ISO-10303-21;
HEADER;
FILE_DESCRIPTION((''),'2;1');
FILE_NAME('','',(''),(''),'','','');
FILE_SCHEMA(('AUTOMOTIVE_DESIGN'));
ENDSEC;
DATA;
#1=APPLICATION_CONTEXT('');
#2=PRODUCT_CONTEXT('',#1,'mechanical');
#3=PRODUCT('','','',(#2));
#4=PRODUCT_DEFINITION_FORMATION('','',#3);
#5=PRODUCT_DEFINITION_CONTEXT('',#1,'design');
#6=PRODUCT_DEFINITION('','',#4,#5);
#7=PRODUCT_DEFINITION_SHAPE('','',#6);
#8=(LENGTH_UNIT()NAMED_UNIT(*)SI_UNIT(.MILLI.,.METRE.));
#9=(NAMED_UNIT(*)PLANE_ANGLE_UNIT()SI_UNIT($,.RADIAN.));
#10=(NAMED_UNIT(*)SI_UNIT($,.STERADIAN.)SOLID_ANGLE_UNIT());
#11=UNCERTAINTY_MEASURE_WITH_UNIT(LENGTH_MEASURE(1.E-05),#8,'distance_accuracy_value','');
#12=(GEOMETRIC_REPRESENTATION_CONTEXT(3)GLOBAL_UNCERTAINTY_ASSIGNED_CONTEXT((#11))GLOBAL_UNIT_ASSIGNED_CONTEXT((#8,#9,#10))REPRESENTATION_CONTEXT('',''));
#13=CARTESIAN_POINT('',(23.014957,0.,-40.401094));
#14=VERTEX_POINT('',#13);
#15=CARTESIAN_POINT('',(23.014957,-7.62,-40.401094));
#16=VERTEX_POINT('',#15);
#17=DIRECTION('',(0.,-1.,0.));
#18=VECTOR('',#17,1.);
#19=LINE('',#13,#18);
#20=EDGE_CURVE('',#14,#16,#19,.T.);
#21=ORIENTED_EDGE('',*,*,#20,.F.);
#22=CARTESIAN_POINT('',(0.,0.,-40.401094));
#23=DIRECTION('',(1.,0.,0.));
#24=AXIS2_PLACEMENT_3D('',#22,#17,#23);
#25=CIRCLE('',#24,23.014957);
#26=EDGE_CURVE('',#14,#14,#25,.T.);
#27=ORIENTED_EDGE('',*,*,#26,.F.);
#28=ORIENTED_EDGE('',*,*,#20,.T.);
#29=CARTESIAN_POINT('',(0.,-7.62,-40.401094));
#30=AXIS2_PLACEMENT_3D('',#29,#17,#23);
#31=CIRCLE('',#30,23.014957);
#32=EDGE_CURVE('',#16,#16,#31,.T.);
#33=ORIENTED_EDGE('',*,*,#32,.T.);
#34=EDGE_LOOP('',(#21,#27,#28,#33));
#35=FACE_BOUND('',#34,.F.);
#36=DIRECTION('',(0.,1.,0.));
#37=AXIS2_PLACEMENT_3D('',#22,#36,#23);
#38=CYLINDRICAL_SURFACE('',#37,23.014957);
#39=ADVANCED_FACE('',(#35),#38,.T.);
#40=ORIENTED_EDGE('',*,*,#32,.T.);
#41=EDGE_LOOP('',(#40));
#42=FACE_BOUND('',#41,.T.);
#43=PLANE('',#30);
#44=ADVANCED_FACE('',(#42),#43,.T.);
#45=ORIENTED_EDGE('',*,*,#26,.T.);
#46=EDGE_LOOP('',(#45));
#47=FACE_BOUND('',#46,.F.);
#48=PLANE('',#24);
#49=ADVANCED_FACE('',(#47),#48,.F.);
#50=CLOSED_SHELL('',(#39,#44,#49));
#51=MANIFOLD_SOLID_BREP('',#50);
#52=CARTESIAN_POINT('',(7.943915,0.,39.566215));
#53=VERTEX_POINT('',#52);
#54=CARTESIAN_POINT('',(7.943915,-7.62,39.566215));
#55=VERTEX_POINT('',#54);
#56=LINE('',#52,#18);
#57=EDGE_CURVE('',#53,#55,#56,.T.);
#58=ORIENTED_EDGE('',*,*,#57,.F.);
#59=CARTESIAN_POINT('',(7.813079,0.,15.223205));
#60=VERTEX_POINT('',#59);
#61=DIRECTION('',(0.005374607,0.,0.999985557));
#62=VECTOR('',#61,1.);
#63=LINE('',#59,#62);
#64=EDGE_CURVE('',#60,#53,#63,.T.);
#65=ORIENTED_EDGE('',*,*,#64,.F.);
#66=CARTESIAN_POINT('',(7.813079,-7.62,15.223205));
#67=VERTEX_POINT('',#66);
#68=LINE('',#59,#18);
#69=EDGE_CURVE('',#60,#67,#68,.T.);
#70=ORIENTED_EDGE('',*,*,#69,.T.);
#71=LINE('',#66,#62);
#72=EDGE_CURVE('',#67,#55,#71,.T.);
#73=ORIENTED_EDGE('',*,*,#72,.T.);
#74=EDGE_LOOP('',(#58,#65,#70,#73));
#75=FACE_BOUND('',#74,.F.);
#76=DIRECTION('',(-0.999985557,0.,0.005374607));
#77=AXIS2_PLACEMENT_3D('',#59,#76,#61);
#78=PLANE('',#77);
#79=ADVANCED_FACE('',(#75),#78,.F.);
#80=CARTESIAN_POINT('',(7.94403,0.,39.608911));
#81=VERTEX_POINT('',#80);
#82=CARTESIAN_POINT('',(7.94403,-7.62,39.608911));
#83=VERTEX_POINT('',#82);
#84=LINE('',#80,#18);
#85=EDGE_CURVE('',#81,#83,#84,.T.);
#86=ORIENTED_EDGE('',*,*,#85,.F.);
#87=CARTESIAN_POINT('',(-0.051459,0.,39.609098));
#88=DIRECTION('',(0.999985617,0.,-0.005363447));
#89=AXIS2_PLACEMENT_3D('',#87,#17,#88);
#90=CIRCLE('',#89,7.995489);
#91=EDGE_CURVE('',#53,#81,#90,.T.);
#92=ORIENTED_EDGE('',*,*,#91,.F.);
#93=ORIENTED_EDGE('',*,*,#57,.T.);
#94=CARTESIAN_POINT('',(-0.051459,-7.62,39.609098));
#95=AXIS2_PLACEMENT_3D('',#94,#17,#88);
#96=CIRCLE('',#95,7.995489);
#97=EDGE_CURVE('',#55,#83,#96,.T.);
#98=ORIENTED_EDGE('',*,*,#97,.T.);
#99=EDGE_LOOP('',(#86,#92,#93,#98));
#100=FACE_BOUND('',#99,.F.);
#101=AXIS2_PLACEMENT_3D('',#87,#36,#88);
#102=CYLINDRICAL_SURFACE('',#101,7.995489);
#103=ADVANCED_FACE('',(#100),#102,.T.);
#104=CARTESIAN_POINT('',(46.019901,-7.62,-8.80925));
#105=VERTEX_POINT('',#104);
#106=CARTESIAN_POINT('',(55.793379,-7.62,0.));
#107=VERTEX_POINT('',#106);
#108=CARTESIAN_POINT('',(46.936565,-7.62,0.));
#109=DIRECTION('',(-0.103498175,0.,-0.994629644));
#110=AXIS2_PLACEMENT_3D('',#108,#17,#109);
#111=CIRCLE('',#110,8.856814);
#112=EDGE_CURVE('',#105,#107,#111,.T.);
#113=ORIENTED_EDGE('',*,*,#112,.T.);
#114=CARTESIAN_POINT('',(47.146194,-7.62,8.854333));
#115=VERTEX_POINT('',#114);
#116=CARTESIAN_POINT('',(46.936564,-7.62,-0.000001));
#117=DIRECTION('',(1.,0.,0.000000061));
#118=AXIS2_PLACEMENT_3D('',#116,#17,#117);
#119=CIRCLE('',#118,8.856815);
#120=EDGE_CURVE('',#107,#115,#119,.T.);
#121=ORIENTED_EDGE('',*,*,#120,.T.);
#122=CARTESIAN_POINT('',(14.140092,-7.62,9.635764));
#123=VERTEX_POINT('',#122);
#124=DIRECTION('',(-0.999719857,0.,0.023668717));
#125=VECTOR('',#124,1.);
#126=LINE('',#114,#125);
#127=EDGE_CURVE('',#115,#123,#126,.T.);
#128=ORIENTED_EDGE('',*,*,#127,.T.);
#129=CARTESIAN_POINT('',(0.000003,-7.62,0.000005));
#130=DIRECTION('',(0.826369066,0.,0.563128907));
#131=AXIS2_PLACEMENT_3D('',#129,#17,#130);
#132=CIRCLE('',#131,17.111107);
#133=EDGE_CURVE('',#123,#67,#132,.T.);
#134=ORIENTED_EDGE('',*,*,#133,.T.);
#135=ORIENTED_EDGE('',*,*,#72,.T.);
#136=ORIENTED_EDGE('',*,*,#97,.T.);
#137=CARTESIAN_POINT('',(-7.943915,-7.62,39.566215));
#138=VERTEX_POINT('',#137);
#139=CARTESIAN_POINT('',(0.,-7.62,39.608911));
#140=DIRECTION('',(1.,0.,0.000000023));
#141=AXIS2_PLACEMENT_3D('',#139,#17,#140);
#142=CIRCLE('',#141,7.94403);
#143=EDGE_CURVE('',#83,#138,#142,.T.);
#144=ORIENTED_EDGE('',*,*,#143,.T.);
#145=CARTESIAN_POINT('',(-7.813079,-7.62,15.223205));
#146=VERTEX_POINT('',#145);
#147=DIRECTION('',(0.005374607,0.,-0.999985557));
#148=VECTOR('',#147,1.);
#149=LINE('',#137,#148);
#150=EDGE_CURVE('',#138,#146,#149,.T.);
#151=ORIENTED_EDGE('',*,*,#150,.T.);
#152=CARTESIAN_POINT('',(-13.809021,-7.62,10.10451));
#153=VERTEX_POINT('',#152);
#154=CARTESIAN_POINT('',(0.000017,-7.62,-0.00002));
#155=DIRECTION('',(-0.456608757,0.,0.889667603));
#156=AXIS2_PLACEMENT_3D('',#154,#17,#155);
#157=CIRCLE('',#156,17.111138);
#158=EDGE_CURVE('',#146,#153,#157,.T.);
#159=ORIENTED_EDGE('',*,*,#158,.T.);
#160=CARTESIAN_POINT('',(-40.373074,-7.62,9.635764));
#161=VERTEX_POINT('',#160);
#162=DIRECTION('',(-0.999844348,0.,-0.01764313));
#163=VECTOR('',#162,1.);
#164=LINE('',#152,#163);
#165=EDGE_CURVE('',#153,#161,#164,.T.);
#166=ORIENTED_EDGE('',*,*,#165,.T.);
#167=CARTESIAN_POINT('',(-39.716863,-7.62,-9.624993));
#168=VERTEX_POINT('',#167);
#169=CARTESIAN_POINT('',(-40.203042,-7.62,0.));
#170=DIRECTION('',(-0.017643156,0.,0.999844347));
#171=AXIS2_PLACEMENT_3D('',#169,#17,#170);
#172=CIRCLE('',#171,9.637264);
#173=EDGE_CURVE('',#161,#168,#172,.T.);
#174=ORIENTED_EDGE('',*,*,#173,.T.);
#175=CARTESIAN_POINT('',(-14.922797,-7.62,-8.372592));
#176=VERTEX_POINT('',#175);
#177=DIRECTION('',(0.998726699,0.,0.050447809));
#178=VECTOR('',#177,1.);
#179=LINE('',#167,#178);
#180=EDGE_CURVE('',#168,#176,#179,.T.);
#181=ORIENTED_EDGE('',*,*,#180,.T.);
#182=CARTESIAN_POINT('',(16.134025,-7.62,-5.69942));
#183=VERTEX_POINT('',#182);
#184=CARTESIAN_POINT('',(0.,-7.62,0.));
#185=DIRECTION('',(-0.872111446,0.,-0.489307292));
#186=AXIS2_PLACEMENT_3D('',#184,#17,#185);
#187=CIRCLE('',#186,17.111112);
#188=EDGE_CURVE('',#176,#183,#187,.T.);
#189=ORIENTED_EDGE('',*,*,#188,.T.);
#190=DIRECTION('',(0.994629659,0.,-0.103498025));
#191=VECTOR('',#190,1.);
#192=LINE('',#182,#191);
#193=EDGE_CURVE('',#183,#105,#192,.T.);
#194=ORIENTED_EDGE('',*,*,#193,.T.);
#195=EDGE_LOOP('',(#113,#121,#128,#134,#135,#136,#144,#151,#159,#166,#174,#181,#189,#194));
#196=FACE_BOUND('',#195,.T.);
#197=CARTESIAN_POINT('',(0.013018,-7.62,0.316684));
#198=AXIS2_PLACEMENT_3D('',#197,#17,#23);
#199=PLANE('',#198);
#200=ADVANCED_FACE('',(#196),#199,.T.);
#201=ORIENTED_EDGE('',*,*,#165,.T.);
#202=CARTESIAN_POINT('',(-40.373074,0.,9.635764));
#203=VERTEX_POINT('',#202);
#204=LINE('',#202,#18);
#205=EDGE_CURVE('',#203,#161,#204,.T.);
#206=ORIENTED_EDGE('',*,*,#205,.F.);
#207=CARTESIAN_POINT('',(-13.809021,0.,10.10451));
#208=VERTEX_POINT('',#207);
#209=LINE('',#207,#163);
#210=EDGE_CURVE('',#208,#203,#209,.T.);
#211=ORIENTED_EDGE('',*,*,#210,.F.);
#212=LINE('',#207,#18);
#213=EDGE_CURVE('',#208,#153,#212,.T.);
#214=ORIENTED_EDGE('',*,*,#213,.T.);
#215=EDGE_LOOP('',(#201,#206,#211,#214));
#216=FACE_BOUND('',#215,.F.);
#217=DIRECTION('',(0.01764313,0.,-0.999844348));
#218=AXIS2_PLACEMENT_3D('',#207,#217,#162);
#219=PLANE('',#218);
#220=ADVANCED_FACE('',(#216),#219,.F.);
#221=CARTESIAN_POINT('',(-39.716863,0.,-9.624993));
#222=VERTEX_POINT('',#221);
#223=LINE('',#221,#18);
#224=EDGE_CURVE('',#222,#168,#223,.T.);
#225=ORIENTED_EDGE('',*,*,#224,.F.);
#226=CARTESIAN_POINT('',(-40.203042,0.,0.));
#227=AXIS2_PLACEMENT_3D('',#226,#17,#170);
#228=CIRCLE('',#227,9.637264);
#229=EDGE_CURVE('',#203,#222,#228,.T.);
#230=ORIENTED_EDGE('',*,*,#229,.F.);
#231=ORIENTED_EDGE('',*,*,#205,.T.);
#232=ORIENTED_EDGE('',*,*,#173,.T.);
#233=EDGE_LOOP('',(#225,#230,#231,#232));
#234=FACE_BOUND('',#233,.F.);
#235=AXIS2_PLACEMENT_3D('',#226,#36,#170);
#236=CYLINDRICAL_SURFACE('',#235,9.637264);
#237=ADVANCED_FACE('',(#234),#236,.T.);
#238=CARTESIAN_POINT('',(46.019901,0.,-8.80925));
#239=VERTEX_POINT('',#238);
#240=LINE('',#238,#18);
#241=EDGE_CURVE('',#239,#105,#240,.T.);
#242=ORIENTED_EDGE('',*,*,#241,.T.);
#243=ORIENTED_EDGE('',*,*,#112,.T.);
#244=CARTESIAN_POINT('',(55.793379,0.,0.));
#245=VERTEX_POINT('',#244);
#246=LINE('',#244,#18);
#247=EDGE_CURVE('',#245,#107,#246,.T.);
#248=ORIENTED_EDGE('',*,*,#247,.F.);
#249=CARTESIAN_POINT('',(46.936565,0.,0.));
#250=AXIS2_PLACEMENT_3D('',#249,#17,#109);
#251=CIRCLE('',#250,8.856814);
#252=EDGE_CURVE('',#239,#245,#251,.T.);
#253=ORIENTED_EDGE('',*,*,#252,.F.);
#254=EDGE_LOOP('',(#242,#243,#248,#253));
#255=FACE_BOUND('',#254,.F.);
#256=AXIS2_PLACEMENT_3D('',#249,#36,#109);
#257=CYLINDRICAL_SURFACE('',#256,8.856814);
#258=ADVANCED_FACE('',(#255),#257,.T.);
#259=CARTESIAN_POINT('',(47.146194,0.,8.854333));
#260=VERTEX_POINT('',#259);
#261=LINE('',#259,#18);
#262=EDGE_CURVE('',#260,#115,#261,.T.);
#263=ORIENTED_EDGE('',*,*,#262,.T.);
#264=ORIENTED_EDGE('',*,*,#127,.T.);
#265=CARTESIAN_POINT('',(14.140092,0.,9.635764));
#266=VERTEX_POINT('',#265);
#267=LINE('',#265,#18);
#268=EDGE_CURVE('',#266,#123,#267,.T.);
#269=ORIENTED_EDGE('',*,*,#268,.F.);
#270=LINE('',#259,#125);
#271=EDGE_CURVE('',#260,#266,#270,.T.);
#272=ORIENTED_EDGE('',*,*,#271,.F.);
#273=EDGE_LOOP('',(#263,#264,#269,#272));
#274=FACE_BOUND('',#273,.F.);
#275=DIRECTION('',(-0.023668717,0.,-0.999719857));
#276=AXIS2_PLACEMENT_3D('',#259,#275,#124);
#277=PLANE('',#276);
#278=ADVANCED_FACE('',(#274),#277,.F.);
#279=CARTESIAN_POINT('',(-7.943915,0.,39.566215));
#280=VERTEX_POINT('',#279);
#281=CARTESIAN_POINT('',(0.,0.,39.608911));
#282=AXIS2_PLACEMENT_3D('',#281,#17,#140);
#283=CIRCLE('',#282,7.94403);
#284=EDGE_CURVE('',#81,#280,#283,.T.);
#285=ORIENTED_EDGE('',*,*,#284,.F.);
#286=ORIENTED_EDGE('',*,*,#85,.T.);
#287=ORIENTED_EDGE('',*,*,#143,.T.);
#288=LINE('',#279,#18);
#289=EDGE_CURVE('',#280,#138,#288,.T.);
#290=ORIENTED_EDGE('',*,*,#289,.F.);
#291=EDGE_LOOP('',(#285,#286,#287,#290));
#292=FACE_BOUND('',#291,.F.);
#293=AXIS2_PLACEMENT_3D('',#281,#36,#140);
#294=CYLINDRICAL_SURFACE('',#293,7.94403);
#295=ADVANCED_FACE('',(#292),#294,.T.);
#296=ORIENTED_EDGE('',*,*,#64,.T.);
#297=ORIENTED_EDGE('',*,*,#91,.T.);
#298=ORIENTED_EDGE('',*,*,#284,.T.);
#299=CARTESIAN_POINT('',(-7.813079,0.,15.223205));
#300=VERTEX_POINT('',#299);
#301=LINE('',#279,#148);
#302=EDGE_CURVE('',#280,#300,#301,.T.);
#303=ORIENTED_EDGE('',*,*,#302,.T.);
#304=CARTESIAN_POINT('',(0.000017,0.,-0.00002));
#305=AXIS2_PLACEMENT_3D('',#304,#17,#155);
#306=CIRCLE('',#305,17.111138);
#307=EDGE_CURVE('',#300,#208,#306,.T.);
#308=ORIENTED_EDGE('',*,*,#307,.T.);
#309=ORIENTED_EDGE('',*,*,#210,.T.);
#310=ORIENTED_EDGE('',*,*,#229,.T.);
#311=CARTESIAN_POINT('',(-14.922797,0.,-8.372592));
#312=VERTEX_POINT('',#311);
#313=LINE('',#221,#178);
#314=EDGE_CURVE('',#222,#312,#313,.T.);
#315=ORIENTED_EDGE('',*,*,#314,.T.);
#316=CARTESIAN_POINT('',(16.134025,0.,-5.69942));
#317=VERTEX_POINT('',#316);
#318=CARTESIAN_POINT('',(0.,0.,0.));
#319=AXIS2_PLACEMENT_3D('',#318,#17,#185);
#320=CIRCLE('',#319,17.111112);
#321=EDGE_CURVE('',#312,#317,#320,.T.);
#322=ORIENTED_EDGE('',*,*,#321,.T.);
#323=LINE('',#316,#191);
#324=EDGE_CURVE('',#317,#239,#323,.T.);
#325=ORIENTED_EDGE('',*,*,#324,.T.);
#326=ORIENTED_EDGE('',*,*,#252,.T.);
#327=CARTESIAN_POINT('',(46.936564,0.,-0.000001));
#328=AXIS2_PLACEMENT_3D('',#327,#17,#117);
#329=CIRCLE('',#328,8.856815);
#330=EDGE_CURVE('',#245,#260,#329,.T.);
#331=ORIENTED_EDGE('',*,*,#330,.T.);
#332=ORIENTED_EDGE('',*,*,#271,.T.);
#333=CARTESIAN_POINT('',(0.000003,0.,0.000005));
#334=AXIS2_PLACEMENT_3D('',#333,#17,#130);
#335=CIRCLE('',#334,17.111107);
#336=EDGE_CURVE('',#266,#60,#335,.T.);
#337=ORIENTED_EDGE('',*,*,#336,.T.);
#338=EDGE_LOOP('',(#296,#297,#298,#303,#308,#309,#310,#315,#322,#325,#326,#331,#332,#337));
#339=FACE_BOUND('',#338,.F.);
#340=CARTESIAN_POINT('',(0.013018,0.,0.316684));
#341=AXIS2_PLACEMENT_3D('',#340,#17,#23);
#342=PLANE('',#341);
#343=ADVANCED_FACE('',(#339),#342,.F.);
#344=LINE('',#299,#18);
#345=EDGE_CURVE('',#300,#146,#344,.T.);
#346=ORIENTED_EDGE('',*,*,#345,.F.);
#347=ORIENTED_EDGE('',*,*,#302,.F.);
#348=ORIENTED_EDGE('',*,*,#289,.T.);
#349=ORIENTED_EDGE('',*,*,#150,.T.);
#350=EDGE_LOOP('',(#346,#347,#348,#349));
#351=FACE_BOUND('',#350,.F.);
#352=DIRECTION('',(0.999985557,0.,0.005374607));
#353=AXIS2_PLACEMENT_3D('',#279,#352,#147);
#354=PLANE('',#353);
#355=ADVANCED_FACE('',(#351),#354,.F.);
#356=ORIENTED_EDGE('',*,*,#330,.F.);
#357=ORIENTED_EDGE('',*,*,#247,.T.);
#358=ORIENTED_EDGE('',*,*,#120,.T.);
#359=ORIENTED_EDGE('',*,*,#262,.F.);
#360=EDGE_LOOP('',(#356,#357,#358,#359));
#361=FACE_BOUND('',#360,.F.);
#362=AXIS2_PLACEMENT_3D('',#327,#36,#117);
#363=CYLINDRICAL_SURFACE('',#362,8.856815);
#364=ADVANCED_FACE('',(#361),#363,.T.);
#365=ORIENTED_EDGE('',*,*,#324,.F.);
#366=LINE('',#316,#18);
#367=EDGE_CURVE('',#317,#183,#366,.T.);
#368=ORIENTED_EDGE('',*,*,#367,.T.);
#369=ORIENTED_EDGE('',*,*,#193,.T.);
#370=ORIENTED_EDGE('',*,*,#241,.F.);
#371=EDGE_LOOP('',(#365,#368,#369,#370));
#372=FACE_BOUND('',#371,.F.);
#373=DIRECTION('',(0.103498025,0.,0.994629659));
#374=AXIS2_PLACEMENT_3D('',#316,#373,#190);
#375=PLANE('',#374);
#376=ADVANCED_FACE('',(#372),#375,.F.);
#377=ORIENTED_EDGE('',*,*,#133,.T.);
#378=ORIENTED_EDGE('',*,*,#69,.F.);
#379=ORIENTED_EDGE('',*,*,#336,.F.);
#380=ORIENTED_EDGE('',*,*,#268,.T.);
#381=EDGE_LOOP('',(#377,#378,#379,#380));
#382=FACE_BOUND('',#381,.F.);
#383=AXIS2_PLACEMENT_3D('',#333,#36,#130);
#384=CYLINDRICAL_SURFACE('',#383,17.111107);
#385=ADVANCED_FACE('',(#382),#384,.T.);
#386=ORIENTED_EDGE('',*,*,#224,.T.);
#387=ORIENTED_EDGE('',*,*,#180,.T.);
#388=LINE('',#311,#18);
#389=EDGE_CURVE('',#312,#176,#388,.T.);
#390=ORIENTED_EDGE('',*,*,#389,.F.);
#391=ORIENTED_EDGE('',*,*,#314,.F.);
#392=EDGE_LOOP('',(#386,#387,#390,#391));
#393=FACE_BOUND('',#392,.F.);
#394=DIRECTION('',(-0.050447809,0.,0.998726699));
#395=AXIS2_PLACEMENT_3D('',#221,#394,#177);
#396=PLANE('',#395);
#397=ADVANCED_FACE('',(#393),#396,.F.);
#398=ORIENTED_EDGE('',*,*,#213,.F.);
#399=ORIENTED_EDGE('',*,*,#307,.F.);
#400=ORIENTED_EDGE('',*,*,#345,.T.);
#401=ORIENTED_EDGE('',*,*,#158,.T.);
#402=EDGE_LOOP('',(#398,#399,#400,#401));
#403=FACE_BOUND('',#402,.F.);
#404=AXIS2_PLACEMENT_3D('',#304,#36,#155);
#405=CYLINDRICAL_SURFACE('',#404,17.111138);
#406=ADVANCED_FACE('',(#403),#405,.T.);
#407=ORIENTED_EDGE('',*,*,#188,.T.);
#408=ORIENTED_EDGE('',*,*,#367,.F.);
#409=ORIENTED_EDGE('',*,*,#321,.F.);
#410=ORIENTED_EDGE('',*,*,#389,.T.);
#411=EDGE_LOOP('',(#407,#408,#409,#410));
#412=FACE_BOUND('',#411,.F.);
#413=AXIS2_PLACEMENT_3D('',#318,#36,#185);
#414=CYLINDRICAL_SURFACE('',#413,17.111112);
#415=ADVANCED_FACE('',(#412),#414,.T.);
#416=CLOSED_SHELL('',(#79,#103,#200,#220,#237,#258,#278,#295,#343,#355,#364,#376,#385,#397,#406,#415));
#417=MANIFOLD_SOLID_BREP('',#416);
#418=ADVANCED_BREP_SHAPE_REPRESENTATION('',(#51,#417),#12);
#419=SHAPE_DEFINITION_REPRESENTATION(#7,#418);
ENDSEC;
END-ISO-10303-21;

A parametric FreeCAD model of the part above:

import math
import FreeCAD as App
import Part
import Sketcher

V = App.Vector
Q = App.Units.Quantity

doc = App.newDocument("Part")
body = doc.addObject("PartDesign::Body", "Body")
body.AllowCompound = True

sketch1 = doc.addObject("Sketcher::SketchObject", "Sketch")
body.addObject(sketch1)
sketch1.AttachmentSupport = (doc.XZ_Plane, [""])
sketch1.MapMode = "FlatFace"
sketch1.addGeometry([
    Part.ArcOfCircle(Part.Circle(V(0.000003, 0.000005, 0), V(0, 0, 1), 17.111107), math.radians(34.27246), math.radians(62.831526)),
    Part.LineSegment(V(7.813079, 15.223205, 0), V(7.943915, 39.566215, 0)),
    Part.ArcOfCircle(Part.Circle(V(-0.051459, 39.609098, 0), V(0, 0, 1), 7.995489), math.radians(-0.307304), math.radians(-0.001343)),
    Part.ArcOfCircle(Part.Circle(V(0, 39.608911, 0), V(0, 0, 1), 7.94403), math.radians(0.000001), math.radians(180.307942)),
    Part.LineSegment(V(-7.943915, 39.566215, 0), V(-7.813079, 15.223205, 0)),
    Part.ArcOfCircle(Part.Circle(V(0.000017, -0.00002, 0), V(0, 0, 1), 17.111138), math.radians(117.168492), math.radians(143.805829)),
    Part.LineSegment(V(-13.809021, 10.10451, 0), V(-40.373074, 9.635764, 0)),
    Part.ArcOfCircle(Part.Circle(V(-40.203042, 0, 0), V(0, 0, 1), 9.637264), math.radians(91.010931), math.radians(272.891676)),
    Part.LineSegment(V(-39.716863, -9.624993, 0), V(-14.922797, -8.372592, 0)),
    Part.ArcOfCircle(Part.Circle(V(0, 0, 0), V(0, 0, 1), 17.111112), math.radians(-150.704938), math.radians(-19.456006)),
    Part.LineSegment(V(16.134025, -5.69942, 0), V(46.019901, -8.80925, 0)),
    Part.ArcOfCircle(Part.Circle(V(46.936565, 0, 0), V(0, 0, 1), 8.856814), math.radians(-95.940647), math.radians(0.000002)),
    Part.ArcOfCircle(Part.Circle(V(46.936564, -0.000001, 0), V(0, 0, 1), 8.856815), math.radians(0.000003), math.radians(88.643754)),
    Part.LineSegment(V(47.146194, 8.854333, 0), V(14.140092, 9.635764, 0)),
    Part.Circle(V(0, -40.401094, 0), V(0, 0, 1), 23.014957),
], False)
sketch1.addConstraint([
    Sketcher.Constraint("Coincident", 0, 2, 1, 1),
    Sketcher.Constraint("Coincident", 1, 2, 2, 1),
    Sketcher.Constraint("Coincident", 2, 2, 3, 1),
    Sketcher.Constraint("Coincident", 3, 2, 4, 1),
    Sketcher.Constraint("Coincident", 4, 2, 5, 1),
    Sketcher.Constraint("Coincident", 5, 2, 6, 1),
    Sketcher.Constraint("Coincident", 6, 2, 7, 1),
    Sketcher.Constraint("Coincident", 7, 2, 8, 1),
    Sketcher.Constraint("Coincident", 8, 2, 9, 1),
    Sketcher.Constraint("Coincident", 9, 2, 10, 1),
    Sketcher.Constraint("Coincident", 10, 2, 11, 1),
    Sketcher.Constraint("Coincident", 11, 2, 12, 1),
    Sketcher.Constraint("Coincident", 12, 2, 13, 1),
    Sketcher.Constraint("Coincident", 13, 2, 0, 1),
    Sketcher.Constraint("Coincident", 0, 3, -1, 1),
    Sketcher.Constraint("Coincident", 9, 3, -1, 1),
    Sketcher.Constraint("Coincident", 12, 3, 11, 3),
    Sketcher.Constraint("PointOnObject", 3, 3, -2),
    Sketcher.Constraint("PointOnObject", 7, 3, -1),
    Sketcher.Constraint("PointOnObject", 11, 3, -1),
    Sketcher.Constraint("PointOnObject", 14, 3, -2),
    Sketcher.Constraint("PointOnObject", 11, 2, -1),
    Sketcher.Constraint("Radius", 2, Q("7.995489 mm")),
    Sketcher.Constraint("Radius", 3, Q("7.94403 mm")),
    Sketcher.Constraint("Radius", 5, Q("17.111138 mm")),
    Sketcher.Constraint("Distance", 1, Q("0.9584001 in")),
    Sketcher.Constraint("Distance", 4, Q("0.9584001 in")),
    Sketcher.Constraint("Diameter", 14, Q("46.029914 mm")),
    Sketcher.Constraint("Radius", 0, Q("17.111107 mm")),
    Sketcher.Constraint("Radius", 7, Q("9.637264 mm")),
    Sketcher.Constraint("Radius", 9, Q("17.111112 mm")),
    Sketcher.Constraint("Radius", 11, Q("8.856814 mm")),
    Sketcher.Constraint("DistanceY", -1, 1, 2, 3, Q("39.609098 mm")),
    Sketcher.Constraint("DistanceX", -1, 1, 10, 2, Q("46.019901 mm")),
    Sketcher.Constraint("DistanceY", 14, 3, 0, 3, Q("40.401099 mm")),
    Sketcher.Constraint("DistanceY", 0, 3, 0, 2, Q("15.2232 mm")),
    Sketcher.Constraint("DistanceY", 0, 3, 4, 2, Q("15.2232 mm")),
    Sketcher.Constraint("DistanceX", 5, 2, 0, 2, Q("21.6221 mm")),
    Sketcher.Constraint("DistanceX", 8, 2, 0, 3, Q("14.9228 mm")),
    Sketcher.Constraint("DistanceY", 8, 2, 5, 2, Q("18.477102 mm")),
    Sketcher.Constraint("DistanceY", 9, 2, 5, 3, Q("5.6994 mm")),
    Sketcher.Constraint("DistanceX", 0, 2, 11, 2, Q("47.9803 mm")),
    Sketcher.Constraint("Distance", 6, Q("26.568188 mm")),
    Sketcher.Constraint("Distance", 10, Q("30.04724 mm")),
    Sketcher.Constraint("Distance", 13, Q("33.015351 mm")),
    Sketcher.Constraint("DistanceY", -1, 1, 3, 3, Q("39.608911 mm")),
    Sketcher.Constraint("DistanceY", -1, 1, 2, 2, Q("39.608911 mm")),
    Sketcher.Constraint("DistanceX", -1, 1, 13, 2, Q("14.140092 mm")),
    Sketcher.Constraint("DistanceX", 7, 3, 5, 3, Q("40.203059 mm")),
    Sketcher.Constraint("DistanceX", 7, 3, 7, 2, Q("0.486179 mm")),
])
pad1 = doc.addObject("PartDesign::Pad", "Pad")
body.addObject(pad1)
pad1.Profile = sketch1
pad1.Length = Q("0.3 in")

doc.recompute()
